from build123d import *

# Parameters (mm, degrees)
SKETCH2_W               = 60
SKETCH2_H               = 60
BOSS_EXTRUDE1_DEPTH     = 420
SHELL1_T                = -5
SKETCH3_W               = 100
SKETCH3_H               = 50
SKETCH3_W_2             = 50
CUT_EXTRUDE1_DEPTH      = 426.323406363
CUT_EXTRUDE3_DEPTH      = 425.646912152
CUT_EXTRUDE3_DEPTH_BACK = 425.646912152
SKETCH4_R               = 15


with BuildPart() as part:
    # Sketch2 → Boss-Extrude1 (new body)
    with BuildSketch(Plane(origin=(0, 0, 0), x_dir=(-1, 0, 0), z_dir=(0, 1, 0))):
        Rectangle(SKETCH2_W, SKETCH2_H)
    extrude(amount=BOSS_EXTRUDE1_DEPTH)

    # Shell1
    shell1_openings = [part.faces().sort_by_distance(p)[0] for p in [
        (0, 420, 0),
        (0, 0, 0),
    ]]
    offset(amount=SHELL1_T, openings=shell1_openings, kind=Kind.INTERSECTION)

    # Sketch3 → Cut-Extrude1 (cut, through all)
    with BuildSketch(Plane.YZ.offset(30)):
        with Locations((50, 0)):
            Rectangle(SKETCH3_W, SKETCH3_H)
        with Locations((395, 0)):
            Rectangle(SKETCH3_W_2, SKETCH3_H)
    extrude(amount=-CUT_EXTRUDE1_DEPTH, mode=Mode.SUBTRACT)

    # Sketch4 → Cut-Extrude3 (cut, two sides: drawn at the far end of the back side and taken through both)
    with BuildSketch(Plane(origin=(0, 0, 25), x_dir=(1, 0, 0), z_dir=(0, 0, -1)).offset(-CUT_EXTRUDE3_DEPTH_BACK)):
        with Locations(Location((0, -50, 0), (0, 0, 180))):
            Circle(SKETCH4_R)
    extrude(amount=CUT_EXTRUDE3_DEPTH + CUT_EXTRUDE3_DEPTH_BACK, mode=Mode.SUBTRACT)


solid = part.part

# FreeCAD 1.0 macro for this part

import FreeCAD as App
import Part
import Sketcher
from FreeCAD import Vector


def faces_at(feature, points):
    """Names of the faces that lie closest to the given points."""
    faces = feature.Shape.Faces
    near = lambda p: min(range(len(faces)), key=lambda i: faces[i].distToShape(Part.Vertex(*p))[0])
    return sorted({f"Face{near(p) + 1}" for p in points})


def add_polygon(sketch, points):
    """Adds a closed chain of lines whose ends are joined by coincident constraints."""
    first, n = sketch.GeometryCount, len(points)
    for a, b in zip(points, points[1:] + points[:1]):
        sketch.addGeometry(Part.LineSegment(App.Vector(*a, 0), App.Vector(*b, 0)), False)
    for i in range(n):
        sketch.addConstraint(Sketcher.Constraint("Coincident", first + i, 2, first + (i + 1) % n, 1))

doc = App.newDocument("Part")
body = doc.addObject("PartDesign::Body", "Body")

# Sketch on XZ plane
sketch1 = body.newObject("Sketcher::SketchObject", "Sketch")
sketch1.AttachmentSupport = (doc.getObject("XZ_Plane"), [""])
sketch1.MapMode = "FlatFace"
add_polygon(sketch1, [(30, 30), (30, -30), (-30, -30), (-30, 30)])  # lines 0-3
sketch1.addConstraint(Sketcher.Constraint("Vertical", 0))
sketch1.addConstraint(Sketcher.Constraint("Horizontal", 1))
sketch1.addConstraint(Sketcher.Constraint("Vertical", 2))
sketch1.addConstraint(Sketcher.Constraint("Horizontal", 3))
sketch1.addConstraint(Sketcher.Constraint("Symmetric", 0, 2, 2, 2, -1, 1))
sketch1.addConstraint(Sketcher.Constraint("Equal", 3, 0))
sketch1.addConstraint(Sketcher.Constraint("DistanceX", 1, 2, 1, 1, 60.0))
pad1 = body.newObject("PartDesign::Pad", "Pad")
pad1.Profile = sketch1
pad1.Length = 420
pad1.Reversed = True
doc.recompute()

thickness = body.newObject("PartDesign::Thickness", "Thickness")
thickness.Base = (pad1, faces_at(pad1, [(0, 420, 0), (0, 0, 0)]))
thickness.Value = 5
thickness.Reversed = True
thickness.Join = "Intersection"

# Sketch on YZ plane
sketch2 = body.newObject("Sketcher::SketchObject", "Sketch001")
sketch2.AttachmentSupport = (doc.getObject("YZ_Plane"), [""])
sketch2.MapMode = "FlatFace"
sketch2.AttachmentOffset = App.Placement(Vector(0, 0, 30), App.Rotation())
add_polygon(sketch2, [(0, 25), (0, -25), (100, -25), (100, 25)])  # lines 0-3
add_polygon(sketch2, [(370, 25), (370, -25), (420, -25), (420, 25)])  # lines 4-7
sketch2.addConstraint(Sketcher.Constraint("Vertical", 0))
sketch2.addConstraint(Sketcher.Constraint("Horizontal", 1))
sketch2.addConstraint(Sketcher.Constraint("Vertical", 2))
sketch2.addConstraint(Sketcher.Constraint("Horizontal", 3))
sketch2.addConstraint(Sketcher.Constraint("Vertical", 4))
sketch2.addConstraint(Sketcher.Constraint("Horizontal", 5))
sketch2.addConstraint(Sketcher.Constraint("Vertical", 6))
sketch2.addConstraint(Sketcher.Constraint("Horizontal", 7))
sketch2.addConstraint(Sketcher.Constraint("Symmetric", 0, 2, 3, 2, -1, 1))
sketch2.addConstraint(Sketcher.Constraint("Horizontal", 1, 2, 4, 2))
sketch2.addConstraint(Sketcher.Constraint("Horizontal", 3, 2, 6, 2))
sketch2.addConstraint(Sketcher.Constraint("Equal", 7, 0))
sketch2.addConstraint(Sketcher.Constraint("DistanceX", 1, 1, 1, 2, 100.0))
sketch2.addConstraint(Sketcher.Constraint("DistanceX", 5, 1, 5, 2, 50.0))
sketch2.addConstraint(Sketcher.Constraint("DistanceX", -1, 1, 4, 2, 370.0))
pocket1 = body.newObject("PartDesign::Pocket", "Pocket")
pocket1.Profile = sketch2
pocket1.Type = "ThroughAll"

# Sketch on XY plane
sketch3 = body.newObject("Sketcher::SketchObject", "Sketch002")
sketch3.AttachmentSupport = (doc.getObject("XY_Plane"), [""])
sketch3.MapMode = "FlatFace"
sketch3.AttachmentOffset = App.Placement(Vector(0, 0, 25), App.Rotation())
sketch3.addGeometry(Part.Circle(Vector(0, 50, 0), Vector(0, 0, 1), 15), False)
sketch3.addConstraint(Sketcher.Constraint("PointOnObject", 0, 3, -2))
sketch3.addConstraint(Sketcher.Constraint("Diameter", 0, 30.0))
sketch3.addConstraint(Sketcher.Constraint("DistanceY", -1, 1, 0, 3, 50.0))
pocket2 = body.newObject("PartDesign::Pocket", "Pocket001")
pocket2.Profile = sketch3
pocket2.Type = "ThroughAll"
pocket2.Midplane = True

doc.recompute()
